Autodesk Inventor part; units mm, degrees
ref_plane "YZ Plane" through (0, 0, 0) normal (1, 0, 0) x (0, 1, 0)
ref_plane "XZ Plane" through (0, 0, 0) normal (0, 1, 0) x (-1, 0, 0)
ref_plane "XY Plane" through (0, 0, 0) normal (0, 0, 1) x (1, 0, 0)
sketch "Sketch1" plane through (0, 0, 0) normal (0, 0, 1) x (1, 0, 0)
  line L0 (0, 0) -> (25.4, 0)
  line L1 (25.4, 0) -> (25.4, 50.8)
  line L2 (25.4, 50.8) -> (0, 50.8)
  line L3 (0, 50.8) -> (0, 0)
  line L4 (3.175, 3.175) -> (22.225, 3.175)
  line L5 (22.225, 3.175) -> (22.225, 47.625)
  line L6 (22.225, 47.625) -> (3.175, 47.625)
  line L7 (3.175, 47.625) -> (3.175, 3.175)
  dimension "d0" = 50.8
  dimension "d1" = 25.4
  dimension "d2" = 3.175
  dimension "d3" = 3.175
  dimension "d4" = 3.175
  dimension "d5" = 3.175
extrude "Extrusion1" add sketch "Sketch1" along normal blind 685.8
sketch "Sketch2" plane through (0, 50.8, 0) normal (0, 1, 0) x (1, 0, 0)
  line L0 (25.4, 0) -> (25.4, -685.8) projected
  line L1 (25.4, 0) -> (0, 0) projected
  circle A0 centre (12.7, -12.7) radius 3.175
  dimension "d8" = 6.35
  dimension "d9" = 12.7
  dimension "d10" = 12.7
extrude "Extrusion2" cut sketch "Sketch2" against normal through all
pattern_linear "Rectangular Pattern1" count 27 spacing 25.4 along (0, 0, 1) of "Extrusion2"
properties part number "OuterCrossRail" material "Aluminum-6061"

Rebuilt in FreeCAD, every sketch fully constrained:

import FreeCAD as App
import Part
import Sketcher

V = App.Vector
Q = App.Units.Quantity

doc = App.newDocument("Part")
body = doc.addObject("PartDesign::Body", "Body")

# Sketch on XY plane
sketch1 = body.newObject("Sketcher::SketchObject", "Sketch")
sketch1.AttachmentSupport = (doc.getObject("XY_Plane"), [""])
sketch1.MapMode = "FlatFace"
sketch1.addGeometry([
    Part.LineSegment(V(0, 51, 0), V(0, 0, 0)),  # 0
    Part.LineSegment(V(0, 0, 0), V(25, 0, 0)),  # 1
    Part.LineSegment(V(25, 0, 0), V(25, 51, 0)),  # 2
    Part.LineSegment(V(25, 51, 0), V(0, 51, 0)),  # 3
    Part.LineSegment(V(22, 3, 0), V(3, 3, 0)),  # 4
    Part.LineSegment(V(3, 3, 0), V(3, 48, 0)),  # 5
    Part.LineSegment(V(3, 48, 0), V(22, 48, 0)),  # 6
    Part.LineSegment(V(22, 48, 0), V(22, 3, 0)),  # 7
], False)
sketch1.addConstraint([
    Sketcher.Constraint("Coincident", 0, 2, 1, 1),
    Sketcher.Constraint("Coincident", 1, 2, 2, 1),
    Sketcher.Constraint("Coincident", 2, 2, 3, 1),
    Sketcher.Constraint("Coincident", 3, 2, 0, 1),
    Sketcher.Constraint("Coincident", 4, 2, 5, 1),
    Sketcher.Constraint("Coincident", 5, 2, 6, 1),
    Sketcher.Constraint("Coincident", 6, 2, 7, 1),
    Sketcher.Constraint("Coincident", 7, 2, 4, 1),
    Sketcher.Constraint("Vertical", 0),
    Sketcher.Constraint("Horizontal", 1),
    Sketcher.Constraint("Vertical", 2),
    Sketcher.Constraint("Horizontal", 3),
    Sketcher.Constraint("Horizontal", 4),
    Sketcher.Constraint("Vertical", 5),
    Sketcher.Constraint("Horizontal", 6),
    Sketcher.Constraint("Vertical", 7),
    Sketcher.Constraint("Coincident", 0, 2, -1, 1),
    Sketcher.Constraint("DistanceX", 1, 1, 1, 2, Q("1 in")),
    Sketcher.Constraint("DistanceY", 0, 2, 0, 1, Q("2 in")),
    Sketcher.Constraint("DistanceX", -1, 1, 4, 2, Q("0.125 in")),
    Sketcher.Constraint("DistanceY", -1, 1, 4, 2, Q("0.125 in")),
    Sketcher.Constraint("DistanceY", 5, 2, 3, 2, Q("0.125 in")),
    Sketcher.Constraint("DistanceX", 6, 2, 2, 2, Q("0.125 in")),
])
pad1 = body.newObject("PartDesign::Pad", "Pad")
pad1.Profile = sketch1
pad1.Length = Q("27 in")

# Sketch on XZ plane
sketch2 = body.newObject("Sketcher::SketchObject", "Sketch001")
sketch2.AttachmentSupport = (doc.getObject("XZ_Plane"), [""])
sketch2.MapMode = "FlatFace"
sketch2.AttachmentOffset = App.Placement(V(0, 0, -2 * 25.4), App.Rotation())
sketch2.addGeometry(Part.Circle(V(12.7, 12.7, 0), V(0, 0, 1), 3.2), False)
sketch2.addConstraint([
    Sketcher.Constraint("Diameter", 0, Q("0.25 in")),
    Sketcher.Constraint("DistanceX", -1, 1, 0, 3, Q("0.5 in")),
    Sketcher.Constraint("DistanceY", -1, 1, 0, 3, Q("0.5 in")),
])
pocket1 = body.newObject("PartDesign::Pocket", "Pocket")
pocket1.Profile = sketch2
pocket1.Type = "ThroughAll"
pocket1.Reversed = True
doc.recompute()

linearpattern = body.newObject("PartDesign::LinearPattern", "LinearPattern")
linearpattern.Originals = [pocket1]
linearpattern.Direction = (doc.getObject("Z_Axis"), [""])
linearpattern.Mode = "offset"
linearpattern.Offset = Q("1 in")
linearpattern.Occurrences = 27
body.Tip = linearpattern

doc.recompute()
